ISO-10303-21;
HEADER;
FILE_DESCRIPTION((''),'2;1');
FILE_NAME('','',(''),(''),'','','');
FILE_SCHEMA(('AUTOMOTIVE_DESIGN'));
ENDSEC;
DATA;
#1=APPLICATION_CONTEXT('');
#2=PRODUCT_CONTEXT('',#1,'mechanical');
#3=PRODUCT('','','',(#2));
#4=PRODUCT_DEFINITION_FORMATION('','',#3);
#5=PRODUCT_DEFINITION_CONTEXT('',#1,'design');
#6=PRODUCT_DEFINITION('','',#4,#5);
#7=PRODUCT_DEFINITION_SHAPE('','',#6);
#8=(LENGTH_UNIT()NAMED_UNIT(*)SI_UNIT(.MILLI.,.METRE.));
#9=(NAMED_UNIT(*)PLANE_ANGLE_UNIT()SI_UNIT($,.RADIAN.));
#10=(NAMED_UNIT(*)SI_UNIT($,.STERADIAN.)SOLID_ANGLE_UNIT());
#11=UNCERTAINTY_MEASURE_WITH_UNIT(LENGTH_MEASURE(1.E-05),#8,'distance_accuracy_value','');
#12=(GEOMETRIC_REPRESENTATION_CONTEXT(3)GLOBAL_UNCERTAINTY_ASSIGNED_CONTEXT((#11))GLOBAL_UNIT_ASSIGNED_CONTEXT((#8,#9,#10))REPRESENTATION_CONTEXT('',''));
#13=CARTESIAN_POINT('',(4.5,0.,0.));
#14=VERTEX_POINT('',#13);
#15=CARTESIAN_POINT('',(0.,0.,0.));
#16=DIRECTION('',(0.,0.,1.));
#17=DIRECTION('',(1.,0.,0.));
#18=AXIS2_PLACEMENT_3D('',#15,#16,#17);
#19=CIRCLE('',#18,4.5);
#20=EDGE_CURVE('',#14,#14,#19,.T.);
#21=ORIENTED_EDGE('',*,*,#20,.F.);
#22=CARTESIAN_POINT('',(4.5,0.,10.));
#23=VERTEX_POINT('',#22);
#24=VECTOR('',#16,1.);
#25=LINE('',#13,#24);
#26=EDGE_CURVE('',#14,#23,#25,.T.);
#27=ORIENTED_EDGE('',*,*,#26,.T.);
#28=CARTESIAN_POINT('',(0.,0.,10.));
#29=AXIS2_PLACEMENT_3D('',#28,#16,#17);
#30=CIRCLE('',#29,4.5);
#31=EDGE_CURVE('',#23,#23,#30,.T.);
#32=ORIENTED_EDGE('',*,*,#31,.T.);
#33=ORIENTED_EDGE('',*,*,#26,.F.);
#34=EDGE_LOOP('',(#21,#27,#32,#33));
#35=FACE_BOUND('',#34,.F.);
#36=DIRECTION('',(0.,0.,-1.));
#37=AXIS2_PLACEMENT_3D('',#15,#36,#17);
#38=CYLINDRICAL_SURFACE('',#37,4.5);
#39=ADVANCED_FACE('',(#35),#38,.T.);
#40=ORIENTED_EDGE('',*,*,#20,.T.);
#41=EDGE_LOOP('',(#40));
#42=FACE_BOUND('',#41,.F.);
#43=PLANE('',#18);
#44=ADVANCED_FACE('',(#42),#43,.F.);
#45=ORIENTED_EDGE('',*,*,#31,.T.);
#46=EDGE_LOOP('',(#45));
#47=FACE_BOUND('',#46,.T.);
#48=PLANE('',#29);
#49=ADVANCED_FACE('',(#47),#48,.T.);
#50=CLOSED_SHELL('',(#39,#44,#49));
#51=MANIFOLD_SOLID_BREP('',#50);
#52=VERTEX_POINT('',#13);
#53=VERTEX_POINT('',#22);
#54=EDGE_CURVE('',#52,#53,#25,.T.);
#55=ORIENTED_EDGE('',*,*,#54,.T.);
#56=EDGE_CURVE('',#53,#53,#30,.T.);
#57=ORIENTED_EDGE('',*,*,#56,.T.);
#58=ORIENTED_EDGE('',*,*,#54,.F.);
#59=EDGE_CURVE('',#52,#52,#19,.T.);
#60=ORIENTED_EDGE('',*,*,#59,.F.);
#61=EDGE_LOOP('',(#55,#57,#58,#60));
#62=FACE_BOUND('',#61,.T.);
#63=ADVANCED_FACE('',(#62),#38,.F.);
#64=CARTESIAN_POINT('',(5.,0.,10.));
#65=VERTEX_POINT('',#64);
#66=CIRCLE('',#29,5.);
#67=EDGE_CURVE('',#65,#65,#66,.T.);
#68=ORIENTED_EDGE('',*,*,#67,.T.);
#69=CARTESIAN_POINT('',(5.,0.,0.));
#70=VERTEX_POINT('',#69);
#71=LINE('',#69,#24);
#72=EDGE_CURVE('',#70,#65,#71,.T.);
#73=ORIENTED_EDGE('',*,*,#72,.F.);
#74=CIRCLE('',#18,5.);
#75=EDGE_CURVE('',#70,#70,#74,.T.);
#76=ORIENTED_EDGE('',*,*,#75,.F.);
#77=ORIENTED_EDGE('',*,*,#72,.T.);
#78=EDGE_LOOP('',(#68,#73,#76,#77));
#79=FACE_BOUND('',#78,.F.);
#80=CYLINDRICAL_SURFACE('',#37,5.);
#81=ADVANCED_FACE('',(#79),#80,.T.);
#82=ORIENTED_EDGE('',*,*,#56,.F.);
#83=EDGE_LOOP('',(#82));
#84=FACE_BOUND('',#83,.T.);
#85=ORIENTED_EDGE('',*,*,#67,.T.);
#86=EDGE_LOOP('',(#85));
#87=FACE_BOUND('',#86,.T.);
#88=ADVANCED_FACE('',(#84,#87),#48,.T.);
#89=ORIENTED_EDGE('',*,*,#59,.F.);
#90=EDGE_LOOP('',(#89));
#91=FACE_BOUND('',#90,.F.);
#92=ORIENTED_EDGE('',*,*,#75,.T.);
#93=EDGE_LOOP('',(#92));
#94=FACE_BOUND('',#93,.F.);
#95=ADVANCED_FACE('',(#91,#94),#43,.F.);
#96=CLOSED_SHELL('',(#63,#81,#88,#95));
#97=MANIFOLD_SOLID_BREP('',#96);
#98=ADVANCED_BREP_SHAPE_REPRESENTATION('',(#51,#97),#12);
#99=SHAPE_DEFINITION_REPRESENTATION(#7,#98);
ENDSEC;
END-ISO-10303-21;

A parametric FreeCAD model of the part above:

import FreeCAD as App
import Part
import Sketcher

V = App.Vector

doc = App.newDocument("Part")
params = doc.addObject("Spreadsheet::Sheet", "Params")
for row, (alias, value) in enumerate([
    ("sketch1_diameter", "9 mm"),
    ("pad1_length", "10 mm"),
    ("sketch2_diameter", "10 mm"),
    ("pad2_length", "10 mm"),
    ("sketch3_diameter", "9 mm"),
    ("pad3_length", "10 mm"),
], start=1):
    params.set(f"A{row}", alias)
    params.set(f"B{row}", "=" + value)
    params.setAlias(f"B{row}", alias)

body = doc.addObject("PartDesign::Body", "Body")

# Sketch on XY plane
sketch1 = doc.addObject("Sketcher::SketchObject", "Sketch")
body.addObject(sketch1)
sketch1.AttachmentSupport = (doc.XY_Plane, [""])
sketch1.MapMode = "FlatFace"
sketch1.addGeometry(Part.Circle(V(0, 0, 0), V(0, 0, 1), 4.5), False)
sketch1.addConstraint(Sketcher.Constraint("Coincident", 0, 3, -1, 1))
sketch1.addConstraint(Sketcher.Constraint("Diameter", 0, 9.0))
sketch1.setExpression("Constraints[1]", "Params.sketch1_diameter")
pad1 = doc.addObject("PartDesign::Pad", "Pad")
body.addObject(pad1)
pad1.Profile = sketch1
pad1.setExpression("Length", "Params.pad1_length")
body2 = doc.addObject("PartDesign::Body", "Body001")

# Sketch on XY plane
sketch2 = doc.addObject("Sketcher::SketchObject", "Sketch001")
body2.addObject(sketch2)
sketch2.AttachmentSupport = (doc.getObject("XY_Plane001"), [""])
sketch2.MapMode = "FlatFace"
sketch2.addGeometry(Part.Circle(V(0, 0, 0), V(0, 0, 1), 5), False)
sketch2.addConstraint(Sketcher.Constraint("Coincident", 0, 3, -1, 1))
sketch2.addConstraint(Sketcher.Constraint("Diameter", 0, 10.0))
sketch2.setExpression("Constraints[1]", "Params.sketch2_diameter")
pad2 = doc.addObject("PartDesign::Pad", "Pad001")
body2.addObject(pad2)
pad2.Profile = sketch2
pad2.setExpression("Length", "Params.pad2_length")
doc.recompute()

boolean = doc.addObject("PartDesign::Boolean", "Boolean")
body2.addObject(boolean)
boolean.Type = "Cut"
boolean.addObjects([body])
body3 = doc.addObject("PartDesign::Body", "Body002")

# Sketch on XY plane
sketch3 = doc.addObject("Sketcher::SketchObject", "Sketch002")
body3.addObject(sketch3)
sketch3.AttachmentSupport = (doc.getObject("XY_Plane002"), [""])
sketch3.MapMode = "FlatFace"
sketch3.addGeometry(Part.Circle(V(0, 0, 0), V(0, 0, 1), 4.5), False)
sketch3.addConstraint(Sketcher.Constraint("Coincident", 0, 3, -1, 1))
sketch3.addConstraint(Sketcher.Constraint("Diameter", 0, 9.0))
sketch3.setExpression("Constraints[1]", "Params.sketch3_diameter")
pad3 = doc.addObject("PartDesign::Pad", "Pad002")
body3.addObject(pad3)
pad3.Profile = sketch3
pad3.setExpression("Length", "Params.pad3_length")

doc.recompute()
